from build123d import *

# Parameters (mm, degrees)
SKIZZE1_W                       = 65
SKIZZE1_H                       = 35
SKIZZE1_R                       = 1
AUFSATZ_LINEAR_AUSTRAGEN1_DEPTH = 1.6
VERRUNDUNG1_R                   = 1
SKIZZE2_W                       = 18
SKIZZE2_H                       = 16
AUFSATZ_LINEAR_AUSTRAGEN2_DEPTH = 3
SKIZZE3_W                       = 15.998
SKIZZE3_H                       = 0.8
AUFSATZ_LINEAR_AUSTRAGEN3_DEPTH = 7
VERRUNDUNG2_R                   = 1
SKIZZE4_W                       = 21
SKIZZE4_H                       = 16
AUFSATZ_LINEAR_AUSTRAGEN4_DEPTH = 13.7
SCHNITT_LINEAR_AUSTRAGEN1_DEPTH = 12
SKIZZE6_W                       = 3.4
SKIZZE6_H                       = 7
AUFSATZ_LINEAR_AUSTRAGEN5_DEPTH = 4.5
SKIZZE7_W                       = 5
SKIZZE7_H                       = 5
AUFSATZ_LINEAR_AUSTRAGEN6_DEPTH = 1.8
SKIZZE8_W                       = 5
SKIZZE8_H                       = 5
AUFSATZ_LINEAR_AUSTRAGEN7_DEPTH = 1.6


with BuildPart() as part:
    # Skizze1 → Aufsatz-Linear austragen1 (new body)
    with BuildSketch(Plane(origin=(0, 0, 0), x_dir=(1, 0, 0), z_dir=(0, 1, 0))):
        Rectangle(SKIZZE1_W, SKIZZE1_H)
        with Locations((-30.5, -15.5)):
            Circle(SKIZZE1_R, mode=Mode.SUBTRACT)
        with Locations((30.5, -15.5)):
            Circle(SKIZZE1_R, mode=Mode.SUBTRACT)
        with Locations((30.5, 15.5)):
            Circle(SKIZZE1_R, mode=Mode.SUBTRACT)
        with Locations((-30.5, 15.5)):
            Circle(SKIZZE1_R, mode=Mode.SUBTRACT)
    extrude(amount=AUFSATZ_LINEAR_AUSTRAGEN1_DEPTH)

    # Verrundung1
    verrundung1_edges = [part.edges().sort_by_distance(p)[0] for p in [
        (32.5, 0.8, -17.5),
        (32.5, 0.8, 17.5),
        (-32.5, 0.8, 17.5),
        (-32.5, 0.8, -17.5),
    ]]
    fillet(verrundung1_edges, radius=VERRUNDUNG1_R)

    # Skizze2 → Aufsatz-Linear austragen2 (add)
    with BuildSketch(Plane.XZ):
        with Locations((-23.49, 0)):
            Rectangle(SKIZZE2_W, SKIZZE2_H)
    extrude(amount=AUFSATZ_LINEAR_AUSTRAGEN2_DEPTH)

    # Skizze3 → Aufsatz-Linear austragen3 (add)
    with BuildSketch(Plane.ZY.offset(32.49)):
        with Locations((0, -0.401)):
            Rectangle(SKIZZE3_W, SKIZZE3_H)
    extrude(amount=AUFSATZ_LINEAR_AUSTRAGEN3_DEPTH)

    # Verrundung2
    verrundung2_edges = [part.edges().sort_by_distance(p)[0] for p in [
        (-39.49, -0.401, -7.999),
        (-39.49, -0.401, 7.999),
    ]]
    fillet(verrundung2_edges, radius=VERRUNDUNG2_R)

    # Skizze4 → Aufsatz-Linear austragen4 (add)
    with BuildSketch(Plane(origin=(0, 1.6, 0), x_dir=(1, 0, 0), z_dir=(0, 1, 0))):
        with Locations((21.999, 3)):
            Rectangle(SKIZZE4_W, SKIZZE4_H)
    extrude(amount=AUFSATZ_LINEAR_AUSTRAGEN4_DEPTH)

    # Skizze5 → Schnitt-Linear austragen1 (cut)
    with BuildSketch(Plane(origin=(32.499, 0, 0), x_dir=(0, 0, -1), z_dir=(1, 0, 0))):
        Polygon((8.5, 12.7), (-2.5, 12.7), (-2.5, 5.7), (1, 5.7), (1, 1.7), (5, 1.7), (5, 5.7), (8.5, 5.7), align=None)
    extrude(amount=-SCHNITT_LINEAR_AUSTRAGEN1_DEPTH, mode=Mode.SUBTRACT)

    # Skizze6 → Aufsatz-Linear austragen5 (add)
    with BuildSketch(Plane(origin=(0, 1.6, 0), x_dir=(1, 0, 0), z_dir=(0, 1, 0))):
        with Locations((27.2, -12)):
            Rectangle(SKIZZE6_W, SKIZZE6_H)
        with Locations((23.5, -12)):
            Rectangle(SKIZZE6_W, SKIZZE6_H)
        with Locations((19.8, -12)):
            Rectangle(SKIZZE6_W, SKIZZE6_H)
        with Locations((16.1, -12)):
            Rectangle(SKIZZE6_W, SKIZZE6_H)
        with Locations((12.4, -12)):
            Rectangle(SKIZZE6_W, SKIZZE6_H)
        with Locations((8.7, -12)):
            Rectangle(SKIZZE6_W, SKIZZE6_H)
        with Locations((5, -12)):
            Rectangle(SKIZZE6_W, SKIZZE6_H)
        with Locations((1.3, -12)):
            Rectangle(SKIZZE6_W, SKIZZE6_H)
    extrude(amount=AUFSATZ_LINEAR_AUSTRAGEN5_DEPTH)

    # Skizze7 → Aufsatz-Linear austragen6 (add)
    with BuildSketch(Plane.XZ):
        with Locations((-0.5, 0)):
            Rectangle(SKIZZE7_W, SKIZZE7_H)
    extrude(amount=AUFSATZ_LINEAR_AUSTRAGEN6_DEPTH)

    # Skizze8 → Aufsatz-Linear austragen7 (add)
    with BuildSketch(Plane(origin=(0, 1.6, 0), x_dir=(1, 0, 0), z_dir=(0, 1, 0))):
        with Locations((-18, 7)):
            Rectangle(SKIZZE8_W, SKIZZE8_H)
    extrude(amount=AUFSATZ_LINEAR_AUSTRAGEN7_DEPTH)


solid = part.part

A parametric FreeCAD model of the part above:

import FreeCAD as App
import Part
import Sketcher

V = App.Vector


def edges_at(feature, points):
    """Names of the edges that pass closest to the given points."""
    edges = feature.Shape.Edges
    near = lambda p: min(range(len(edges)), key=lambda i: edges[i].distToShape(Part.Vertex(*p))[0])
    return sorted({f"Edge{near(p) + 1}" for p in points})

doc = App.newDocument("Part")
params = doc.addObject("Spreadsheet::Sheet", "Params")
for row, (alias, value) in enumerate([
    ("sketch1_diameter", "2 mm"),
    ("sketch1_width", "65 mm"),
    ("sketch1_height", "35 mm"),
    ("pad1_length", "1.6 mm"),
    ("fillet_radius", "1 mm"),
    ("sketch2_width", "18 mm"),
    ("sketch2_height", "16 mm"),
    ("pad2_length", "3 mm"),
    ("sketch3_width", "0.8 mm"),
    ("pad3_length", "7 mm"),
    ("fillet2_radius", "1 mm"),
    ("sketch4_width", "21 mm"),
    ("sketch4_height", "16 mm"),
    ("pad4_length", "13.7 mm"),
    ("sketch5_width", "7 mm"),
    ("sketch5_width2", "4 mm"),
    ("sketch5_height", "11 mm"),
    ("pocket1_length", "12 mm"),
    ("sketch6_height", "7 mm"),
    ("sketch6_width", "3.4 mm"),
    ("pad5_length", "4.5 mm"),
    ("sketch7_width", "5 mm"),
    ("pad6_length", "1.8 mm"),
    ("sketch8_width", "5 mm"),
    ("pad7_length", "1.6 mm"),
], start=1):
    params.set(f"A{row}", alias)
    params.set(f"B{row}", "=" + value)
    params.setAlias(f"B{row}", alias)

body = doc.addObject("PartDesign::Body", "Body")

# Sketch on XZ plane
sketch1 = body.newObject("Sketcher::SketchObject", "Sketch")
sketch1.AttachmentSupport = (doc.getObject("XZ_Plane"), [""])
sketch1.MapMode = "FlatFace"
sketch1.addGeometry([
    Part.LineSegment(V(-32.5, -17.5, 0), V(-32.5, 17.5, 0)),  # 0
    Part.LineSegment(V(-32.5, 17.5, 0), V(32.5, 17.5, 0)),  # 1
    Part.LineSegment(V(32.5, 17.5, 0), V(32.5, -17.5, 0)),  # 2
    Part.LineSegment(V(32.5, -17.5, 0), V(-32.5, -17.5, 0)),  # 3
    Part.Circle(V(-30.5, 15.5, 0), V(0, 0, 1), 1),  # 4
    Part.Circle(V(30.5, 15.5, 0), V(0, 0, 1), 1),  # 5
    Part.Circle(V(-30.5, -15.5, 0), V(0, 0, 1), 1),  # 6
    Part.Circle(V(30.5, -15.5, 0), V(0, 0, 1), 1),  # 7
], False)
sketch1.addConstraint([
    Sketcher.Constraint("Coincident", 0, 2, 1, 1),
    Sketcher.Constraint("Coincident", 1, 2, 2, 1),
    Sketcher.Constraint("Coincident", 2, 2, 3, 1),
    Sketcher.Constraint("Coincident", 3, 2, 0, 1),
    Sketcher.Constraint("Vertical", 0),
    Sketcher.Constraint("Horizontal", 1),
    Sketcher.Constraint("Vertical", 2),
    Sketcher.Constraint("Horizontal", 3),
    Sketcher.Constraint("Equal", 4, 5),
    Sketcher.Constraint("Equal", 5, 6),
    Sketcher.Constraint("Equal", 6, 7),
    Sketcher.Constraint("Symmetric", 5, 3, 6, 3, -1, 1),
    Sketcher.Constraint("Symmetric", 4, 3, 7, 3, -1, 1),
    Sketcher.Constraint("Symmetric", 0, 2, 2, 2, -1, 1),
    Sketcher.Constraint("Symmetric", 4, 3, 5, 3, -2),
    Sketcher.Constraint("Diameter", 4, 2.0),
    Sketcher.Constraint("DistanceX", 1, 1, 1, 2, 65.0),
    Sketcher.Constraint("DistanceY", 0, 1, 0, 2, 35.0),
    Sketcher.Constraint("DistanceX", 4, 3, 5, 3, 61.0),
    Sketcher.Constraint("DistanceY", 6, 3, 4, 3, 31.0),
])
sketch1.setExpression("Constraints[15]", "Params.sketch1_diameter")
sketch1.setExpression("Constraints[16]", "Params.sketch1_width")
sketch1.setExpression("Constraints[17]", "Params.sketch1_height")
pad1 = body.newObject("PartDesign::Pad", "Pad")
pad1.Profile = sketch1
pad1.setExpression("Length", "Params.pad1_length")
pad1.Reversed = True
doc.recompute()

fillet = body.newObject("PartDesign::Fillet", "Fillet")
fillet.Base = (pad1, edges_at(pad1, [
    (32.5, 0.8, -17.5),
    (32.5, 0.8, 17.5),
    (-32.5, 0.8, 17.5),
    (-32.5, 0.8, -17.5),
]))
fillet.setExpression("Radius", "Params.fillet_radius")

# Sketch on XZ plane
sketch2 = body.newObject("Sketcher::SketchObject", "Sketch001")
sketch2.AttachmentSupport = (doc.getObject("XZ_Plane"), [""])
sketch2.MapMode = "FlatFace"
sketch2.addGeometry([
    Part.LineSegment(V(-32, 8, 0), V(-32, -8, 0)),
    Part.LineSegment(V(-32, -8, 0), V(-14, -8, 0)),
    Part.LineSegment(V(-14, -8, 0), V(-14, 8, 0)),
    Part.LineSegment(V(-14, 8, 0), V(-32, 8, 0)),
], False)
sketch2.addConstraint([
    Sketcher.Constraint("Coincident", 0, 2, 1, 1),
    Sketcher.Constraint("Coincident", 1, 2, 2, 1),
    Sketcher.Constraint("Coincident", 2, 2, 3, 1),
    Sketcher.Constraint("Coincident", 3, 2, 0, 1),
    Sketcher.Constraint("Vertical", 0),
    Sketcher.Constraint("Horizontal", 1),
    Sketcher.Constraint("Vertical", 2),
    Sketcher.Constraint("Horizontal", 3),
    Sketcher.Constraint("DistanceX", 1, 1, 1, 2, 18.0),
    Sketcher.Constraint("DistanceY", 0, 2, 0, 1, 16.0),
    Sketcher.Constraint("DistanceY", 0, 2, -1, 1, 8.0),
    Sketcher.Constraint("DistanceX", 0, 2, -1, 1, 32.49),
])
sketch2.setExpression("Constraints[8]", "Params.sketch2_width")
sketch2.setExpression("Constraints[9]", "Params.sketch2_height")
pad2 = body.newObject("PartDesign::Pad", "Pad001")
pad2.Profile = sketch2
pad2.setExpression("Length", "Params.pad2_length")

# Sketch on YZ plane
sketch3 = body.newObject("Sketcher::SketchObject", "Sketch002")
sketch3.AttachmentSupport = (doc.getObject("YZ_Plane"), [""])
sketch3.MapMode = "FlatFace"
sketch3.AttachmentOffset = App.Placement(V(0, 0, -32.49), App.Rotation())
sketch3.addGeometry([
    Part.LineSegment(V(0, -8, 0), V(-0.8, -8, 0)),
    Part.LineSegment(V(-0.8, -8, 0), V(-0.8, 8, 0)),
    Part.LineSegment(V(-0.8, 8, 0), V(0, 8, 0)),
    Part.LineSegment(V(0, 8, 0), V(0, -8, 0)),
], False)
sketch3.addConstraint([
    Sketcher.Constraint("Coincident", 0, 2, 1, 1),
    Sketcher.Constraint("Coincident", 1, 2, 2, 1),
    Sketcher.Constraint("Coincident", 2, 2, 3, 1),
    Sketcher.Constraint("Coincident", 3, 2, 0, 1),
    Sketcher.Constraint("Horizontal", 0),
    Sketcher.Constraint("Vertical", 1),
    Sketcher.Constraint("Horizontal", 2),
    Sketcher.Constraint("Vertical", 3),
    Sketcher.Constraint("DistanceX", 0, 2, 0, 1, 0.8),
    Sketcher.Constraint("DistanceY", 1, 1, 1, 2, 15.998),
    Sketcher.Constraint("DistanceX", 0, 2, -1, 1, 0.801),
    Sketcher.Constraint("DistanceY", 0, 2, -1, 1, 7.999),
])
sketch3.setExpression("Constraints[8]", "Params.sketch3_width")
pad3 = body.newObject("PartDesign::Pad", "Pad002")
pad3.Profile = sketch3
pad3.setExpression("Length", "Params.pad3_length")
pad3.Reversed = True
doc.recompute()

fillet2 = body.newObject("PartDesign::Fillet", "Fillet001")
fillet2.Base = (pad3, edges_at(pad3, [(-39.49, -0.401, -7.999), (-39.49, -0.401, 7.999)]))
fillet2.setExpression("Radius", "Params.fillet2_radius")

# Sketch on XZ plane
sketch4 = body.newObject("Sketcher::SketchObject", "Sketch003")
sketch4.AttachmentSupport = (doc.getObject("XZ_Plane"), [""])
sketch4.MapMode = "FlatFace"
sketch4.AttachmentOffset = App.Placement(V(0, 0, -1.6), App.Rotation())
sketch4.addGeometry([
    Part.LineSegment(V(11, -11, 0), V(11, 5, 0)),
    Part.LineSegment(V(11, 5, 0), V(32, 5, 0)),
    Part.LineSegment(V(32, 5, 0), V(32, -11, 0)),
    Part.LineSegment(V(32, -11, 0), V(11, -11, 0)),
], False)
sketch4.addConstraint([
    Sketcher.Constraint("Coincident", 0, 2, 1, 1),
    Sketcher.Constraint("Coincident", 1, 2, 2, 1),
    Sketcher.Constraint("Coincident", 2, 2, 3, 1),
    Sketcher.Constraint("Coincident", 3, 2, 0, 1),
    Sketcher.Constraint("Vertical", 0),
    Sketcher.Constraint("Horizontal", 1),
    Sketcher.Constraint("Vertical", 2),
    Sketcher.Constraint("Horizontal", 3),
    Sketcher.Constraint("DistanceX", 1, 1, 1, 2, 21.0),
    Sketcher.Constraint("DistanceY", 0, 1, 0, 2, 16.0),
    Sketcher.Constraint("DistanceY", -1, 1, 0, 2, 5.0),
    Sketcher.Constraint("DistanceX", -1, 1, 0, 2, 11.499),
])
sketch4.setExpression("Constraints[8]", "Params.sketch4_width")
sketch4.setExpression("Constraints[9]", "Params.sketch4_height")
pad4 = body.newObject("PartDesign::Pad", "Pad003")
pad4.Profile = sketch4
pad4.setExpression("Length", "Params.pad4_length")
pad4.Reversed = True

# Sketch on YZ plane
sketch5 = body.newObject("Sketcher::SketchObject", "Sketch004")
sketch5.AttachmentSupport = (doc.getObject("YZ_Plane"), [""])
sketch5.MapMode = "FlatFace"
sketch5.AttachmentOffset = App.Placement(V(0, 0, 32.499), App.Rotation())
sketch5.addGeometry([
    Part.LineSegment(V(12.7, -8.5, 0), V(12.7, 2.5, 0)),  # 0
    Part.LineSegment(V(12.7, 2.5, 0), V(5.7, 2.5, 0)),  # 1
    Part.LineSegment(V(5.7, 2.5, 0), V(5.7, -1, 0)),  # 2
    Part.LineSegment(V(5.7, -1, 0), V(1.7, -1, 0)),  # 3
    Part.LineSegment(V(1.7, -1, 0), V(1.7, -5, 0)),  # 4
    Part.LineSegment(V(1.7, -5, 0), V(5.7, -5, 0)),  # 5
    Part.LineSegment(V(5.7, -5, 0), V(5.7, -8.5, 0)),  # 6
    Part.LineSegment(V(5.7, -8.5, 0), V(12.7, -8.5, 0)),  # 7
], False)
sketch5.addConstraint([
    Sketcher.Constraint("Coincident", 0, 2, 1, 1),
    Sketcher.Constraint("Coincident", 1, 2, 2, 1),
    Sketcher.Constraint("Coincident", 2, 2, 3, 1),
    Sketcher.Constraint("Coincident", 3, 2, 4, 1),
    Sketcher.Constraint("Coincident", 4, 2, 5, 1),
    Sketcher.Constraint("Coincident", 5, 2, 6, 1),
    Sketcher.Constraint("Coincident", 6, 2, 7, 1),
    Sketcher.Constraint("Coincident", 7, 2, 0, 1),
    Sketcher.Constraint("Vertical", 0),
    Sketcher.Constraint("Horizontal", 1),
    Sketcher.Constraint("Vertical", 2),
    Sketcher.Constraint("Horizontal", 3),
    Sketcher.Constraint("Vertical", 4),
    Sketcher.Constraint("Horizontal", 5),
    Sketcher.Constraint("Vertical", 6),
    Sketcher.Constraint("Horizontal", 7),
    Sketcher.Constraint("Vertical", 2, 2, 5, 2),
    Sketcher.Constraint("Equal", 5, 4),
    Sketcher.Constraint("Equal", 2, 6),
    Sketcher.Constraint("DistanceX", 1, 2, 1, 1, 7.0),
    Sketcher.Constraint("DistanceX", 3, 2, 3, 1, 4.0),
    Sketcher.Constraint("DistanceY", 0, 1, 0, 2, 11.0),
    Sketcher.Constraint("DistanceY", 2, 2, -1, 1, 1.0),
    Sketcher.Constraint("DistanceX", -1, 1, 0, 2, 12.7),
])
sketch5.setExpression("Constraints[19]", "Params.sketch5_width")
sketch5.setExpression("Constraints[20]", "Params.sketch5_width2")
sketch5.setExpression("Constraints[21]", "Params.sketch5_height")
pocket1 = body.newObject("PartDesign::Pocket", "Pocket")
pocket1.Profile = sketch5
pocket1.setExpression("Length", "Params.pocket1_length")

# Sketch on XZ plane
sketch6 = body.newObject("Sketcher::SketchObject", "Sketch005")
sketch6.AttachmentSupport = (doc.getObject("XZ_Plane"), [""])
sketch6.MapMode = "FlatFace"
sketch6.AttachmentOffset = App.Placement(V(0, 0, -1.6), App.Rotation())
sketch6.addGeometry([
    Part.LineSegment(V(25.5, 8.5, 0), V(25.5, 15.5, 0)),  # 0
    Part.LineSegment(V(25.5, 15.5, 0), V(28.9, 15.5, 0)),  # 1
    Part.LineSegment(V(28.9, 15.5, 0), V(28.9, 8.5, 0)),  # 2
    Part.LineSegment(V(28.9, 8.5, 0), V(25.5, 8.5, 0)),  # 3
    Part.LineSegment(V(21.8, 8.5, 0), V(21.8, 15.5, 0)),  # 4
    Part.LineSegment(V(21.8, 15.5, 0), V(25.2, 15.5, 0)),  # 5
    Part.LineSegment(V(25.2, 15.5, 0), V(25.2, 8.5, 0)),  # 6
    Part.LineSegment(V(25.2, 8.5, 0), V(21.8, 8.5, 0)),  # 7
    Part.LineSegment(V(18.1, 8.5, 0), V(18.1, 15.5, 0)),  # 8
    Part.LineSegment(V(18.1, 15.5, 0), V(21.5, 15.5, 0)),  # 9
    Part.LineSegment(V(21.5, 15.5, 0), V(21.5, 8.5, 0)),  # 10
    Part.LineSegment(V(21.5, 8.5, 0), V(18.1, 8.5, 0)),  # 11
    Part.LineSegment(V(14.4, 8.5, 0), V(14.4, 15.5, 0)),  # 12
    Part.LineSegment(V(14.4, 15.5, 0), V(17.8, 15.5, 0)),  # 13
    Part.LineSegment(V(17.8, 15.5, 0), V(17.8, 8.5, 0)),  # 14
    Part.LineSegment(V(17.8, 8.5, 0), V(14.4, 8.5, 0)),  # 15
    Part.LineSegment(V(10.7, 8.5, 0), V(10.7, 15.5, 0)),  # 16
    Part.LineSegment(V(10.7, 15.5, 0), V(14.1, 15.5, 0)),  # 17
    Part.LineSegment(V(14.1, 15.5, 0), V(14.1, 8.5, 0)),  # 18
    Part.LineSegment(V(14.1, 8.5, 0), V(10.7, 8.5, 0)),  # 19
    Part.LineSegment(V(7, 8.5, 0), V(7, 15.5, 0)),  # 20
    Part.LineSegment(V(7, 15.5, 0), V(10.4, 15.5, 0)),  # 21
    Part.LineSegment(V(10.4, 15.5, 0), V(10.4, 8.5, 0)),  # 22
    Part.LineSegment(V(10.4, 8.5, 0), V(7, 8.5, 0)),  # 23
    Part.LineSegment(V(3.3, 8.5, 0), V(3.3, 15.5, 0)),  # 24
    Part.LineSegment(V(3.3, 15.5, 0), V(6.7, 15.5, 0)),  # 25
    Part.LineSegment(V(6.7, 15.5, 0), V(6.7, 8.5, 0)),  # 26
    Part.LineSegment(V(6.7, 8.5, 0), V(3.3, 8.5, 0)),  # 27
    Part.LineSegment(V(-0.4, 8.5, 0), V(-0.4, 15.5, 0)),  # 28
    Part.LineSegment(V(-0.4, 15.5, 0), V(3, 15.5, 0)),  # 29
    Part.LineSegment(V(3, 15.5, 0), V(3, 8.5, 0)),  # 30
    Part.LineSegment(V(3, 8.5, 0), V(-0.4, 8.5, 0)),  # 31
], False)
sketch6.addConstraint([
    Sketcher.Constraint("Coincident", 0, 2, 1, 1),
    Sketcher.Constraint("Coincident", 1, 2, 2, 1),
    Sketcher.Constraint("Coincident", 2, 2, 3, 1),
    Sketcher.Constraint("Coincident", 3, 2, 0, 1),
    Sketcher.Constraint("Coincident", 4, 2, 5, 1),
    Sketcher.Constraint("Coincident", 5, 2, 6, 1),
    Sketcher.Constraint("Coincident", 6, 2, 7, 1),
    Sketcher.Constraint("Coincident", 7, 2, 4, 1),
    Sketcher.Constraint("Coincident", 8, 2, 9, 1),
    Sketcher.Constraint("Coincident", 9, 2, 10, 1),
    Sketcher.Constraint("Coincident", 10, 2, 11, 1),
    Sketcher.Constraint("Coincident", 11, 2, 8, 1),
    Sketcher.Constraint("Coincident", 12, 2, 13, 1),
    Sketcher.Constraint("Coincident", 13, 2, 14, 1),
    Sketcher.Constraint("Coincident", 14, 2, 15, 1),
    Sketcher.Constraint("Coincident", 15, 2, 12, 1),
    Sketcher.Constraint("Coincident", 16, 2, 17, 1),
    Sketcher.Constraint("Coincident", 17, 2, 18, 1),
    Sketcher.Constraint("Coincident", 18, 2, 19, 1),
    Sketcher.Constraint("Coincident", 19, 2, 16, 1),
    Sketcher.Constraint("Coincident", 20, 2, 21, 1),
    Sketcher.Constraint("Coincident", 21, 2, 22, 1),
    Sketcher.Constraint("Coincident", 22, 2, 23, 1),
    Sketcher.Constraint("Coincident", 23, 2, 20, 1),
    Sketcher.Constraint("Coincident", 24, 2, 25, 1),
    Sketcher.Constraint("Coincident", 25, 2, 26, 1),
    Sketcher.Constraint("Coincident", 26, 2, 27, 1),
    Sketcher.Constraint("Coincident", 27, 2, 24, 1),
    Sketcher.Constraint("Coincident", 28, 2, 29, 1),
    Sketcher.Constraint("Coincident", 29, 2, 30, 1),
    Sketcher.Constraint("Coincident", 30, 2, 31, 1),
    Sketcher.Constraint("Coincident", 31, 2, 28, 1),
    Sketcher.Constraint("Vertical", 0),
    Sketcher.Constraint("Horizontal", 1),
    Sketcher.Constraint("Vertical", 2),
    Sketcher.Constraint("Horizontal", 3),
    Sketcher.Constraint("Vertical", 4),
    Sketcher.Constraint("Horizontal", 5),
    Sketcher.Constraint("Vertical", 6),
    Sketcher.Constraint("Horizontal", 7),
    Sketcher.Constraint("Vertical", 8),
    Sketcher.Constraint("Horizontal", 9),
    Sketcher.Constraint("Vertical", 10),
    Sketcher.Constraint("Horizontal", 11),
    Sketcher.Constraint("Vertical", 12),
    Sketcher.Constraint("Horizontal", 13),
    Sketcher.Constraint("Vertical", 14),
    Sketcher.Constraint("Horizontal", 15),
    Sketcher.Constraint("Vertical", 16),
    Sketcher.Constraint("Horizontal", 17),
    Sketcher.Constraint("Vertical", 18),
    Sketcher.Constraint("Horizontal", 19),
    Sketcher.Constraint("Vertical", 20),
    Sketcher.Constraint("Horizontal", 21),
    Sketcher.Constraint("Vertical", 22),
    Sketcher.Constraint("Horizontal", 23),
    Sketcher.Constraint("Vertical", 24),
    Sketcher.Constraint("Horizontal", 25),
    Sketcher.Constraint("Vertical", 26),
    Sketcher.Constraint("Horizontal", 27),
    Sketcher.Constraint("Vertical", 28),
    Sketcher.Constraint("Horizontal", 29),
    Sketcher.Constraint("Vertical", 30),
    Sketcher.Constraint("Horizontal", 31),
    Sketcher.Constraint("Horizontal", 1, 2, 4, 2),
    Sketcher.Constraint("Horizontal", 3, 2, 6, 2),
    Sketcher.Constraint("Horizontal", 5, 2, 8, 2),
    Sketcher.Constraint("Horizontal", 7, 2, 10, 2),
    Sketcher.Constraint("Horizontal", 9, 2, 12, 2),
    Sketcher.Constraint("Horizontal", 11, 2, 14, 2),
    Sketcher.Constraint("Horizontal", 13, 2, 16, 2),
    Sketcher.Constraint("Horizontal", 15, 2, 18, 2),
    Sketcher.Constraint("Horizontal", 17, 2, 20, 2),
    Sketcher.Constraint("Horizontal", 19, 2, 22, 2),
    Sketcher.Constraint("Horizontal", 21, 2, 24, 2),
    Sketcher.Constraint("Horizontal", 23, 2, 26, 2),
    Sketcher.Constraint("Horizontal", 25, 2, 28, 2),
    Sketcher.Constraint("Horizontal", 27, 2, 30, 2),
    Sketcher.Constraint("Equal", 3, 5),
    Sketcher.Constraint("Equal", 7, 9),
    Sketcher.Constraint("Equal", 11, 13),
    Sketcher.Constraint("Equal", 15, 17),
    Sketcher.Constraint("Equal", 19, 21),
    Sketcher.Constraint("Equal", 23, 25),
    Sketcher.Constraint("Equal", 27, 29),
    Sketcher.Constraint("DistanceY", 0, 1, 0, 2, 7.0),
    Sketcher.Constraint("DistanceX", 1, 1, 1, 2, 3.4),
    Sketcher.Constraint("DistanceX", -1, 1, 20, 2, 7.0),
    Sketcher.Constraint("DistanceX", -1, 1, 29, 2, 3.0),
    Sketcher.Constraint("DistanceX", 9, 2, 0, 2, 4.0),
    Sketcher.Constraint("DistanceX", 13, 2, 4, 2, 4.0),
    Sketcher.Constraint("DistanceX", 17, 2, 8, 2, 4.0),
    Sketcher.Constraint("DistanceX", 21, 2, 12, 2, 4.0),
    Sketcher.Constraint("DistanceX", 25, 2, 16, 2, 4.0),
    Sketcher.Constraint("DistanceX", -1, 1, 0, 2, 25.5),
    Sketcher.Constraint("DistanceY", -1, 1, 0, 2, 15.5),
])
sketch6.setExpression("Constraints[85]", "Params.sketch6_height")
sketch6.setExpression("Constraints[86]", "Params.sketch6_width")
pad5 = body.newObject("PartDesign::Pad", "Pad004")
pad5.Profile = sketch6
pad5.setExpression("Length", "Params.pad5_length")
pad5.Reversed = True

# Sketch on XZ plane
sketch7 = body.newObject("Sketcher::SketchObject", "Sketch006")
sketch7.AttachmentSupport = (doc.getObject("XZ_Plane"), [""])
sketch7.MapMode = "FlatFace"
sketch7.addGeometry([
    Part.LineSegment(V(-3, 2, 0), V(-3, -2, 0)),
    Part.LineSegment(V(-3, -2, 0), V(2, -2, 0)),
    Part.LineSegment(V(2, -2, 0), V(2, 2, 0)),
    Part.LineSegment(V(2, 2, 0), V(-3, 2, 0)),
], False)
sketch7.addConstraint([
    Sketcher.Constraint("Coincident", 0, 2, 1, 1),
    Sketcher.Constraint("Coincident", 1, 2, 2, 1),
    Sketcher.Constraint("Coincident", 2, 2, 3, 1),
    Sketcher.Constraint("Coincident", 3, 2, 0, 1),
    Sketcher.Constraint("Vertical", 0),
    Sketcher.Constraint("Horizontal", 1),
    Sketcher.Constraint("Vertical", 2),
    Sketcher.Constraint("Horizontal", 3),
    Sketcher.Constraint("Equal", 3, 0),
    Sketcher.Constraint("DistanceX", 1, 1, 1, 2, 5.0),
    Sketcher.Constraint("DistanceX", 0, 2, -1, 1, 3.0),
    Sketcher.Constraint("DistanceY", 0, 2, -1, 1, 2.5),
])
sketch7.setExpression("Constraints[9]", "Params.sketch7_width")
pad6 = body.newObject("PartDesign::Pad", "Pad005")
pad6.Profile = sketch7
pad6.setExpression("Length", "Params.pad6_length")

# Sketch on XZ plane
sketch8 = body.newObject("Sketcher::SketchObject", "Sketch007")
sketch8.AttachmentSupport = (doc.getObject("XZ_Plane"), [""])
sketch8.MapMode = "FlatFace"
sketch8.AttachmentOffset = App.Placement(V(0, 0, -1.6), App.Rotation())
sketch8.addGeometry([
    Part.LineSegment(V(-20, -10, 0), V(-20, -4, 0)),
    Part.LineSegment(V(-20, -4, 0), V(-16, -4, 0)),
    Part.LineSegment(V(-16, -4, 0), V(-16, -10, 0)),
    Part.LineSegment(V(-16, -10, 0), V(-20, -10, 0)),
], False)
sketch8.addConstraint([
    Sketcher.Constraint("Coincident", 0, 2, 1, 1),
    Sketcher.Constraint("Coincident", 1, 2, 2, 1),
    Sketcher.Constraint("Coincident", 2, 2, 3, 1),
    Sketcher.Constraint("Coincident", 3, 2, 0, 1),
    Sketcher.Constraint("Vertical", 0),
    Sketcher.Constraint("Horizontal", 1),
    Sketcher.Constraint("Vertical", 2),
    Sketcher.Constraint("Horizontal", 3),
    Sketcher.Constraint("Equal", 3, 0),
    Sketcher.Constraint("DistanceX", 1, 1, 1, 2, 5.0),
    Sketcher.Constraint("DistanceX", 0, 2, -1, 1, 20.5),
    Sketcher.Constraint("DistanceY", 0, 2, -1, 1, 4.5),
])
sketch8.setExpression("Constraints[9]", "Params.sketch8_width")
pad7 = body.newObject("PartDesign::Pad", "Pad006")
pad7.Profile = sketch8
pad7.setExpression("Length", "Params.pad7_length")
pad7.Reversed = True

doc.recompute()
